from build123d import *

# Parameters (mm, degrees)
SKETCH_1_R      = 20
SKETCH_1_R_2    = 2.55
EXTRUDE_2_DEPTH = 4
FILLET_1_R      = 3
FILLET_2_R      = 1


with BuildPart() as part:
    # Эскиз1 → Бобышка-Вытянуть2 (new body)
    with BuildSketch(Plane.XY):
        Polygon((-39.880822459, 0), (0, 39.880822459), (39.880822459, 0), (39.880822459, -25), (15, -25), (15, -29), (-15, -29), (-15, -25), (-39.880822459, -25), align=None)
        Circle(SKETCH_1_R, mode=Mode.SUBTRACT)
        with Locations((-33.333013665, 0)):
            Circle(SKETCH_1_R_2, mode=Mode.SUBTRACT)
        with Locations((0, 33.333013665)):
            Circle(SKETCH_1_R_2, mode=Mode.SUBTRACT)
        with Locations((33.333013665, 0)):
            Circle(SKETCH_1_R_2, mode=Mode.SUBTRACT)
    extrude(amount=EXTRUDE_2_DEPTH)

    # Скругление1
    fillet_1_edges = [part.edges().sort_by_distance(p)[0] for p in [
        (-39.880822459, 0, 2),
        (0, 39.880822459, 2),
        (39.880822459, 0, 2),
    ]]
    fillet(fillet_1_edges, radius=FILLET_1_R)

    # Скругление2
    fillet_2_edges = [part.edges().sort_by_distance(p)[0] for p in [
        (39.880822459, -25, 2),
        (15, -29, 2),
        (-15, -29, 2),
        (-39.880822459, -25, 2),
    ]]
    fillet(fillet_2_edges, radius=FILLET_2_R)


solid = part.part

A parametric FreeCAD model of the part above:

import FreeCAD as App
import Part
import Sketcher


def edges_at(feature, points):
    """Names of the edges that pass closest to the given points."""
    edges = feature.Shape.Edges
    near = lambda p: min(range(len(edges)), key=lambda i: edges[i].distToShape(Part.Vertex(*p))[0])
    return sorted({f"Edge{near(p) + 1}" for p in points})

doc = App.newDocument("Part")
body = doc.addObject("PartDesign::Body", "Body")

sketch1 = body.newObject("Sketcher::SketchObject", "Sketch")
sketch1.AttachmentSupport = (doc.getObject("XY_Plane"), [""])
sketch1.MapMode = "FlatFace"
sketch1.addGeometry([
    Part.LineSegment(App.Vector(0, 39.9, 0), App.Vector(-39.9, 0, 0)),
    Part.LineSegment(App.Vector(-39.9, 0, 0), App.Vector(-39.9, -25, 0)),
    Part.LineSegment(App.Vector(-39.9, -25, 0), App.Vector(-15, -25, 0)),
    Part.LineSegment(App.Vector(-15, -25, 0), App.Vector(-15, -29, 0)),
    Part.LineSegment(App.Vector(-15, -29, 0), App.Vector(15, -29, 0)),
    Part.LineSegment(App.Vector(15, -29, 0), App.Vector(15, -25, 0)),
    Part.LineSegment(App.Vector(15, -25, 0), App.Vector(39.9, -25, 0)),
    Part.LineSegment(App.Vector(39.9, -25, 0), App.Vector(39.9, 0, 0)),
    Part.LineSegment(App.Vector(39.9, 0, 0), App.Vector(0, 39.9, 0)),
    Part.Circle(App.Vector(33.3, 0, 0), App.Vector(0, 0, 1), 2.5),
    Part.Circle(App.Vector(0, 0, 0), App.Vector(0, 0, 1), 20),
    Part.Circle(App.Vector(-33.3, 0, 0), App.Vector(0, 0, 1), 2.5),
    Part.Circle(App.Vector(0, 33.3, 0), App.Vector(0, 0, 1), 2.5),
], False)
sketch1.addConstraint([
    Sketcher.Constraint("Coincident", 0, 2, 1, 1),
    Sketcher.Constraint("Coincident", 1, 2, 2, 1),
    Sketcher.Constraint("Coincident", 2, 2, 3, 1),
    Sketcher.Constraint("Coincident", 3, 2, 4, 1),
    Sketcher.Constraint("Coincident", 4, 2, 5, 1),
    Sketcher.Constraint("Coincident", 5, 2, 6, 1),
    Sketcher.Constraint("Coincident", 6, 2, 7, 1),
    Sketcher.Constraint("Coincident", 7, 2, 8, 1),
    Sketcher.Constraint("Coincident", 8, 2, 0, 1),
    Sketcher.Constraint("Vertical", 1),
    Sketcher.Constraint("Horizontal", 2),
    Sketcher.Constraint("Vertical", 3),
    Sketcher.Constraint("Horizontal", 4),
    Sketcher.Constraint("Vertical", 5),
    Sketcher.Constraint("Horizontal", 6),
    Sketcher.Constraint("Vertical", 7),
    Sketcher.Constraint("Coincident", 10, 3, -1, 1),
    Sketcher.Constraint("Equal", 9, 11),
    Sketcher.Constraint("Equal", 11, 12),
    Sketcher.Constraint("Symmetric", 9, 3, 11, 3, -1, 1),
    Sketcher.Constraint("Symmetric", 0, 2, 7, 2, -1, 1),
    Sketcher.Constraint("Symmetric", 2, 2, 5, 2, -2),
    Sketcher.Constraint("PointOnObject", 9, 3, -1),
    Sketcher.Constraint("PointOnObject", 12, 3, -2),
    Sketcher.Constraint("PointOnObject", 0, 2, -1),
    Sketcher.Constraint("PointOnObject", 8, 2, -2),
    Sketcher.Constraint("Perpendicular", 0, 8),
    Sketcher.Constraint("Diameter", 10, 40.0),
    Sketcher.Constraint("Diameter", 9, 5.1),
    Sketcher.Constraint("DistanceX", 4, 1, 4, 2, 30.0),
    Sketcher.Constraint("DistanceY", 1, 2, 1, 1, 25.0),
    Sketcher.Constraint("DistanceY", 3, 2, 3, 1, 4.0),
    Sketcher.Constraint("Distance", 0, 56.4),
    Sketcher.Constraint("DistanceX", 0, 2, 11, 3, 6.547809),
    Sketcher.Constraint("DistanceY", 12, 3, 8, 2, 6.547809),
])
pad1 = body.newObject("PartDesign::Pad", "Pad")
pad1.Profile = sketch1
pad1.Length = 4
doc.recompute()

fillet = body.newObject("PartDesign::Fillet", "Fillet")
fillet.Base = (pad1, edges_at(pad1, [(-39.881, 0, 2), (0, 39.881, 2), (39.881, 0, 2)]))
fillet.Radius = 3
doc.recompute()

fillet2 = body.newObject("PartDesign::Fillet", "Fillet001")
fillet2.Base = (fillet, edges_at(fillet, [
    (39.881, -25, 2),
    (15, -29, 2),
    (-15, -29, 2),
    (-39.881, -25, 2),
]))
fillet2.Radius = 1

doc.recompute()
